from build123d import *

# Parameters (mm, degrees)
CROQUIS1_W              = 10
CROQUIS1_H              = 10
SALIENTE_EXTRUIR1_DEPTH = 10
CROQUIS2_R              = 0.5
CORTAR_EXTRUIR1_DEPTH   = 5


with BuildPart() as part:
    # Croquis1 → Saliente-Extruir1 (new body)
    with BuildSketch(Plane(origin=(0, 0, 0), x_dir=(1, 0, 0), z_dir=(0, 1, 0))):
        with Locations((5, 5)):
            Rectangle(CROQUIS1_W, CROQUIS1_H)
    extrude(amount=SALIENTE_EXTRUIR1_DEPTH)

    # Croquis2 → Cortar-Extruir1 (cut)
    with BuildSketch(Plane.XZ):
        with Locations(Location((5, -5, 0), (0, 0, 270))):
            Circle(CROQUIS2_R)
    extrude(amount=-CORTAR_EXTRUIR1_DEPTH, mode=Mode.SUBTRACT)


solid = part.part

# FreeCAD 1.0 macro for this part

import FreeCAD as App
import Part
import Sketcher

V = App.Vector
Q = App.Units.Quantity


def add_polygon(sketch, points):
    """Adds a closed chain of lines whose ends are joined by coincident constraints."""
    first, n = sketch.GeometryCount, len(points)
    for a, b in zip(points, points[1:] + points[:1]):
        sketch.addGeometry(Part.LineSegment(App.Vector(*a, 0), App.Vector(*b, 0)), False)
    for i in range(n):
        sketch.addConstraint(Sketcher.Constraint("Coincident", first + i, 2, first + (i + 1) % n, 1))

doc = App.newDocument("Part")
body = doc.addObject("PartDesign::Body", "Body")

# Sketch on XZ plane
sketch1 = doc.addObject("Sketcher::SketchObject", "Sketch")
body.addObject(sketch1)
sketch1.AttachmentSupport = (doc.XZ_Plane, [""])
sketch1.MapMode = "FlatFace"
add_polygon(sketch1, [(0, -10), (0, 0), (10, 0), (10, -10)])  # lines 0-3
sketch1.addConstraint([
    Sketcher.Constraint("Vertical", 0),
    Sketcher.Constraint("Horizontal", 1),
    Sketcher.Constraint("Vertical", 2),
    Sketcher.Constraint("Horizontal", 3),
    Sketcher.Constraint("Coincident", 0, 2, -1, 1),
    Sketcher.Constraint("Equal", 3, 0),
    Sketcher.Constraint("DistanceX", 1, 1, 1, 2, Q("10 mm")),
])
pad1 = doc.addObject("PartDesign::Pad", "Pad")
body.addObject(pad1)
pad1.Profile = sketch1
pad1.Length = 10
pad1.Reversed = True

# Sketch on XZ plane
sketch2 = doc.addObject("Sketcher::SketchObject", "Sketch001")
body.addObject(sketch2)
sketch2.AttachmentSupport = (doc.XZ_Plane, [""])
sketch2.MapMode = "FlatFace"
sketch2.addGeometry(Part.Circle(V(5, -5, 0), V(0, 0, 1), 0.5), False)
sketch2.addConstraint([
    Sketcher.Constraint("Diameter", 0, Q("1 mm")),
    Sketcher.Constraint("DistanceX", -1, 1, 0, 3, Q("5 mm")),
    Sketcher.Constraint("DistanceY", 0, 3, -1, 1, Q("5 mm")),
])
pocket1 = doc.addObject("PartDesign::Pocket", "Pocket")
body.addObject(pocket1)
pocket1.Profile = sketch2
pocket1.Length = 5

doc.recompute()
